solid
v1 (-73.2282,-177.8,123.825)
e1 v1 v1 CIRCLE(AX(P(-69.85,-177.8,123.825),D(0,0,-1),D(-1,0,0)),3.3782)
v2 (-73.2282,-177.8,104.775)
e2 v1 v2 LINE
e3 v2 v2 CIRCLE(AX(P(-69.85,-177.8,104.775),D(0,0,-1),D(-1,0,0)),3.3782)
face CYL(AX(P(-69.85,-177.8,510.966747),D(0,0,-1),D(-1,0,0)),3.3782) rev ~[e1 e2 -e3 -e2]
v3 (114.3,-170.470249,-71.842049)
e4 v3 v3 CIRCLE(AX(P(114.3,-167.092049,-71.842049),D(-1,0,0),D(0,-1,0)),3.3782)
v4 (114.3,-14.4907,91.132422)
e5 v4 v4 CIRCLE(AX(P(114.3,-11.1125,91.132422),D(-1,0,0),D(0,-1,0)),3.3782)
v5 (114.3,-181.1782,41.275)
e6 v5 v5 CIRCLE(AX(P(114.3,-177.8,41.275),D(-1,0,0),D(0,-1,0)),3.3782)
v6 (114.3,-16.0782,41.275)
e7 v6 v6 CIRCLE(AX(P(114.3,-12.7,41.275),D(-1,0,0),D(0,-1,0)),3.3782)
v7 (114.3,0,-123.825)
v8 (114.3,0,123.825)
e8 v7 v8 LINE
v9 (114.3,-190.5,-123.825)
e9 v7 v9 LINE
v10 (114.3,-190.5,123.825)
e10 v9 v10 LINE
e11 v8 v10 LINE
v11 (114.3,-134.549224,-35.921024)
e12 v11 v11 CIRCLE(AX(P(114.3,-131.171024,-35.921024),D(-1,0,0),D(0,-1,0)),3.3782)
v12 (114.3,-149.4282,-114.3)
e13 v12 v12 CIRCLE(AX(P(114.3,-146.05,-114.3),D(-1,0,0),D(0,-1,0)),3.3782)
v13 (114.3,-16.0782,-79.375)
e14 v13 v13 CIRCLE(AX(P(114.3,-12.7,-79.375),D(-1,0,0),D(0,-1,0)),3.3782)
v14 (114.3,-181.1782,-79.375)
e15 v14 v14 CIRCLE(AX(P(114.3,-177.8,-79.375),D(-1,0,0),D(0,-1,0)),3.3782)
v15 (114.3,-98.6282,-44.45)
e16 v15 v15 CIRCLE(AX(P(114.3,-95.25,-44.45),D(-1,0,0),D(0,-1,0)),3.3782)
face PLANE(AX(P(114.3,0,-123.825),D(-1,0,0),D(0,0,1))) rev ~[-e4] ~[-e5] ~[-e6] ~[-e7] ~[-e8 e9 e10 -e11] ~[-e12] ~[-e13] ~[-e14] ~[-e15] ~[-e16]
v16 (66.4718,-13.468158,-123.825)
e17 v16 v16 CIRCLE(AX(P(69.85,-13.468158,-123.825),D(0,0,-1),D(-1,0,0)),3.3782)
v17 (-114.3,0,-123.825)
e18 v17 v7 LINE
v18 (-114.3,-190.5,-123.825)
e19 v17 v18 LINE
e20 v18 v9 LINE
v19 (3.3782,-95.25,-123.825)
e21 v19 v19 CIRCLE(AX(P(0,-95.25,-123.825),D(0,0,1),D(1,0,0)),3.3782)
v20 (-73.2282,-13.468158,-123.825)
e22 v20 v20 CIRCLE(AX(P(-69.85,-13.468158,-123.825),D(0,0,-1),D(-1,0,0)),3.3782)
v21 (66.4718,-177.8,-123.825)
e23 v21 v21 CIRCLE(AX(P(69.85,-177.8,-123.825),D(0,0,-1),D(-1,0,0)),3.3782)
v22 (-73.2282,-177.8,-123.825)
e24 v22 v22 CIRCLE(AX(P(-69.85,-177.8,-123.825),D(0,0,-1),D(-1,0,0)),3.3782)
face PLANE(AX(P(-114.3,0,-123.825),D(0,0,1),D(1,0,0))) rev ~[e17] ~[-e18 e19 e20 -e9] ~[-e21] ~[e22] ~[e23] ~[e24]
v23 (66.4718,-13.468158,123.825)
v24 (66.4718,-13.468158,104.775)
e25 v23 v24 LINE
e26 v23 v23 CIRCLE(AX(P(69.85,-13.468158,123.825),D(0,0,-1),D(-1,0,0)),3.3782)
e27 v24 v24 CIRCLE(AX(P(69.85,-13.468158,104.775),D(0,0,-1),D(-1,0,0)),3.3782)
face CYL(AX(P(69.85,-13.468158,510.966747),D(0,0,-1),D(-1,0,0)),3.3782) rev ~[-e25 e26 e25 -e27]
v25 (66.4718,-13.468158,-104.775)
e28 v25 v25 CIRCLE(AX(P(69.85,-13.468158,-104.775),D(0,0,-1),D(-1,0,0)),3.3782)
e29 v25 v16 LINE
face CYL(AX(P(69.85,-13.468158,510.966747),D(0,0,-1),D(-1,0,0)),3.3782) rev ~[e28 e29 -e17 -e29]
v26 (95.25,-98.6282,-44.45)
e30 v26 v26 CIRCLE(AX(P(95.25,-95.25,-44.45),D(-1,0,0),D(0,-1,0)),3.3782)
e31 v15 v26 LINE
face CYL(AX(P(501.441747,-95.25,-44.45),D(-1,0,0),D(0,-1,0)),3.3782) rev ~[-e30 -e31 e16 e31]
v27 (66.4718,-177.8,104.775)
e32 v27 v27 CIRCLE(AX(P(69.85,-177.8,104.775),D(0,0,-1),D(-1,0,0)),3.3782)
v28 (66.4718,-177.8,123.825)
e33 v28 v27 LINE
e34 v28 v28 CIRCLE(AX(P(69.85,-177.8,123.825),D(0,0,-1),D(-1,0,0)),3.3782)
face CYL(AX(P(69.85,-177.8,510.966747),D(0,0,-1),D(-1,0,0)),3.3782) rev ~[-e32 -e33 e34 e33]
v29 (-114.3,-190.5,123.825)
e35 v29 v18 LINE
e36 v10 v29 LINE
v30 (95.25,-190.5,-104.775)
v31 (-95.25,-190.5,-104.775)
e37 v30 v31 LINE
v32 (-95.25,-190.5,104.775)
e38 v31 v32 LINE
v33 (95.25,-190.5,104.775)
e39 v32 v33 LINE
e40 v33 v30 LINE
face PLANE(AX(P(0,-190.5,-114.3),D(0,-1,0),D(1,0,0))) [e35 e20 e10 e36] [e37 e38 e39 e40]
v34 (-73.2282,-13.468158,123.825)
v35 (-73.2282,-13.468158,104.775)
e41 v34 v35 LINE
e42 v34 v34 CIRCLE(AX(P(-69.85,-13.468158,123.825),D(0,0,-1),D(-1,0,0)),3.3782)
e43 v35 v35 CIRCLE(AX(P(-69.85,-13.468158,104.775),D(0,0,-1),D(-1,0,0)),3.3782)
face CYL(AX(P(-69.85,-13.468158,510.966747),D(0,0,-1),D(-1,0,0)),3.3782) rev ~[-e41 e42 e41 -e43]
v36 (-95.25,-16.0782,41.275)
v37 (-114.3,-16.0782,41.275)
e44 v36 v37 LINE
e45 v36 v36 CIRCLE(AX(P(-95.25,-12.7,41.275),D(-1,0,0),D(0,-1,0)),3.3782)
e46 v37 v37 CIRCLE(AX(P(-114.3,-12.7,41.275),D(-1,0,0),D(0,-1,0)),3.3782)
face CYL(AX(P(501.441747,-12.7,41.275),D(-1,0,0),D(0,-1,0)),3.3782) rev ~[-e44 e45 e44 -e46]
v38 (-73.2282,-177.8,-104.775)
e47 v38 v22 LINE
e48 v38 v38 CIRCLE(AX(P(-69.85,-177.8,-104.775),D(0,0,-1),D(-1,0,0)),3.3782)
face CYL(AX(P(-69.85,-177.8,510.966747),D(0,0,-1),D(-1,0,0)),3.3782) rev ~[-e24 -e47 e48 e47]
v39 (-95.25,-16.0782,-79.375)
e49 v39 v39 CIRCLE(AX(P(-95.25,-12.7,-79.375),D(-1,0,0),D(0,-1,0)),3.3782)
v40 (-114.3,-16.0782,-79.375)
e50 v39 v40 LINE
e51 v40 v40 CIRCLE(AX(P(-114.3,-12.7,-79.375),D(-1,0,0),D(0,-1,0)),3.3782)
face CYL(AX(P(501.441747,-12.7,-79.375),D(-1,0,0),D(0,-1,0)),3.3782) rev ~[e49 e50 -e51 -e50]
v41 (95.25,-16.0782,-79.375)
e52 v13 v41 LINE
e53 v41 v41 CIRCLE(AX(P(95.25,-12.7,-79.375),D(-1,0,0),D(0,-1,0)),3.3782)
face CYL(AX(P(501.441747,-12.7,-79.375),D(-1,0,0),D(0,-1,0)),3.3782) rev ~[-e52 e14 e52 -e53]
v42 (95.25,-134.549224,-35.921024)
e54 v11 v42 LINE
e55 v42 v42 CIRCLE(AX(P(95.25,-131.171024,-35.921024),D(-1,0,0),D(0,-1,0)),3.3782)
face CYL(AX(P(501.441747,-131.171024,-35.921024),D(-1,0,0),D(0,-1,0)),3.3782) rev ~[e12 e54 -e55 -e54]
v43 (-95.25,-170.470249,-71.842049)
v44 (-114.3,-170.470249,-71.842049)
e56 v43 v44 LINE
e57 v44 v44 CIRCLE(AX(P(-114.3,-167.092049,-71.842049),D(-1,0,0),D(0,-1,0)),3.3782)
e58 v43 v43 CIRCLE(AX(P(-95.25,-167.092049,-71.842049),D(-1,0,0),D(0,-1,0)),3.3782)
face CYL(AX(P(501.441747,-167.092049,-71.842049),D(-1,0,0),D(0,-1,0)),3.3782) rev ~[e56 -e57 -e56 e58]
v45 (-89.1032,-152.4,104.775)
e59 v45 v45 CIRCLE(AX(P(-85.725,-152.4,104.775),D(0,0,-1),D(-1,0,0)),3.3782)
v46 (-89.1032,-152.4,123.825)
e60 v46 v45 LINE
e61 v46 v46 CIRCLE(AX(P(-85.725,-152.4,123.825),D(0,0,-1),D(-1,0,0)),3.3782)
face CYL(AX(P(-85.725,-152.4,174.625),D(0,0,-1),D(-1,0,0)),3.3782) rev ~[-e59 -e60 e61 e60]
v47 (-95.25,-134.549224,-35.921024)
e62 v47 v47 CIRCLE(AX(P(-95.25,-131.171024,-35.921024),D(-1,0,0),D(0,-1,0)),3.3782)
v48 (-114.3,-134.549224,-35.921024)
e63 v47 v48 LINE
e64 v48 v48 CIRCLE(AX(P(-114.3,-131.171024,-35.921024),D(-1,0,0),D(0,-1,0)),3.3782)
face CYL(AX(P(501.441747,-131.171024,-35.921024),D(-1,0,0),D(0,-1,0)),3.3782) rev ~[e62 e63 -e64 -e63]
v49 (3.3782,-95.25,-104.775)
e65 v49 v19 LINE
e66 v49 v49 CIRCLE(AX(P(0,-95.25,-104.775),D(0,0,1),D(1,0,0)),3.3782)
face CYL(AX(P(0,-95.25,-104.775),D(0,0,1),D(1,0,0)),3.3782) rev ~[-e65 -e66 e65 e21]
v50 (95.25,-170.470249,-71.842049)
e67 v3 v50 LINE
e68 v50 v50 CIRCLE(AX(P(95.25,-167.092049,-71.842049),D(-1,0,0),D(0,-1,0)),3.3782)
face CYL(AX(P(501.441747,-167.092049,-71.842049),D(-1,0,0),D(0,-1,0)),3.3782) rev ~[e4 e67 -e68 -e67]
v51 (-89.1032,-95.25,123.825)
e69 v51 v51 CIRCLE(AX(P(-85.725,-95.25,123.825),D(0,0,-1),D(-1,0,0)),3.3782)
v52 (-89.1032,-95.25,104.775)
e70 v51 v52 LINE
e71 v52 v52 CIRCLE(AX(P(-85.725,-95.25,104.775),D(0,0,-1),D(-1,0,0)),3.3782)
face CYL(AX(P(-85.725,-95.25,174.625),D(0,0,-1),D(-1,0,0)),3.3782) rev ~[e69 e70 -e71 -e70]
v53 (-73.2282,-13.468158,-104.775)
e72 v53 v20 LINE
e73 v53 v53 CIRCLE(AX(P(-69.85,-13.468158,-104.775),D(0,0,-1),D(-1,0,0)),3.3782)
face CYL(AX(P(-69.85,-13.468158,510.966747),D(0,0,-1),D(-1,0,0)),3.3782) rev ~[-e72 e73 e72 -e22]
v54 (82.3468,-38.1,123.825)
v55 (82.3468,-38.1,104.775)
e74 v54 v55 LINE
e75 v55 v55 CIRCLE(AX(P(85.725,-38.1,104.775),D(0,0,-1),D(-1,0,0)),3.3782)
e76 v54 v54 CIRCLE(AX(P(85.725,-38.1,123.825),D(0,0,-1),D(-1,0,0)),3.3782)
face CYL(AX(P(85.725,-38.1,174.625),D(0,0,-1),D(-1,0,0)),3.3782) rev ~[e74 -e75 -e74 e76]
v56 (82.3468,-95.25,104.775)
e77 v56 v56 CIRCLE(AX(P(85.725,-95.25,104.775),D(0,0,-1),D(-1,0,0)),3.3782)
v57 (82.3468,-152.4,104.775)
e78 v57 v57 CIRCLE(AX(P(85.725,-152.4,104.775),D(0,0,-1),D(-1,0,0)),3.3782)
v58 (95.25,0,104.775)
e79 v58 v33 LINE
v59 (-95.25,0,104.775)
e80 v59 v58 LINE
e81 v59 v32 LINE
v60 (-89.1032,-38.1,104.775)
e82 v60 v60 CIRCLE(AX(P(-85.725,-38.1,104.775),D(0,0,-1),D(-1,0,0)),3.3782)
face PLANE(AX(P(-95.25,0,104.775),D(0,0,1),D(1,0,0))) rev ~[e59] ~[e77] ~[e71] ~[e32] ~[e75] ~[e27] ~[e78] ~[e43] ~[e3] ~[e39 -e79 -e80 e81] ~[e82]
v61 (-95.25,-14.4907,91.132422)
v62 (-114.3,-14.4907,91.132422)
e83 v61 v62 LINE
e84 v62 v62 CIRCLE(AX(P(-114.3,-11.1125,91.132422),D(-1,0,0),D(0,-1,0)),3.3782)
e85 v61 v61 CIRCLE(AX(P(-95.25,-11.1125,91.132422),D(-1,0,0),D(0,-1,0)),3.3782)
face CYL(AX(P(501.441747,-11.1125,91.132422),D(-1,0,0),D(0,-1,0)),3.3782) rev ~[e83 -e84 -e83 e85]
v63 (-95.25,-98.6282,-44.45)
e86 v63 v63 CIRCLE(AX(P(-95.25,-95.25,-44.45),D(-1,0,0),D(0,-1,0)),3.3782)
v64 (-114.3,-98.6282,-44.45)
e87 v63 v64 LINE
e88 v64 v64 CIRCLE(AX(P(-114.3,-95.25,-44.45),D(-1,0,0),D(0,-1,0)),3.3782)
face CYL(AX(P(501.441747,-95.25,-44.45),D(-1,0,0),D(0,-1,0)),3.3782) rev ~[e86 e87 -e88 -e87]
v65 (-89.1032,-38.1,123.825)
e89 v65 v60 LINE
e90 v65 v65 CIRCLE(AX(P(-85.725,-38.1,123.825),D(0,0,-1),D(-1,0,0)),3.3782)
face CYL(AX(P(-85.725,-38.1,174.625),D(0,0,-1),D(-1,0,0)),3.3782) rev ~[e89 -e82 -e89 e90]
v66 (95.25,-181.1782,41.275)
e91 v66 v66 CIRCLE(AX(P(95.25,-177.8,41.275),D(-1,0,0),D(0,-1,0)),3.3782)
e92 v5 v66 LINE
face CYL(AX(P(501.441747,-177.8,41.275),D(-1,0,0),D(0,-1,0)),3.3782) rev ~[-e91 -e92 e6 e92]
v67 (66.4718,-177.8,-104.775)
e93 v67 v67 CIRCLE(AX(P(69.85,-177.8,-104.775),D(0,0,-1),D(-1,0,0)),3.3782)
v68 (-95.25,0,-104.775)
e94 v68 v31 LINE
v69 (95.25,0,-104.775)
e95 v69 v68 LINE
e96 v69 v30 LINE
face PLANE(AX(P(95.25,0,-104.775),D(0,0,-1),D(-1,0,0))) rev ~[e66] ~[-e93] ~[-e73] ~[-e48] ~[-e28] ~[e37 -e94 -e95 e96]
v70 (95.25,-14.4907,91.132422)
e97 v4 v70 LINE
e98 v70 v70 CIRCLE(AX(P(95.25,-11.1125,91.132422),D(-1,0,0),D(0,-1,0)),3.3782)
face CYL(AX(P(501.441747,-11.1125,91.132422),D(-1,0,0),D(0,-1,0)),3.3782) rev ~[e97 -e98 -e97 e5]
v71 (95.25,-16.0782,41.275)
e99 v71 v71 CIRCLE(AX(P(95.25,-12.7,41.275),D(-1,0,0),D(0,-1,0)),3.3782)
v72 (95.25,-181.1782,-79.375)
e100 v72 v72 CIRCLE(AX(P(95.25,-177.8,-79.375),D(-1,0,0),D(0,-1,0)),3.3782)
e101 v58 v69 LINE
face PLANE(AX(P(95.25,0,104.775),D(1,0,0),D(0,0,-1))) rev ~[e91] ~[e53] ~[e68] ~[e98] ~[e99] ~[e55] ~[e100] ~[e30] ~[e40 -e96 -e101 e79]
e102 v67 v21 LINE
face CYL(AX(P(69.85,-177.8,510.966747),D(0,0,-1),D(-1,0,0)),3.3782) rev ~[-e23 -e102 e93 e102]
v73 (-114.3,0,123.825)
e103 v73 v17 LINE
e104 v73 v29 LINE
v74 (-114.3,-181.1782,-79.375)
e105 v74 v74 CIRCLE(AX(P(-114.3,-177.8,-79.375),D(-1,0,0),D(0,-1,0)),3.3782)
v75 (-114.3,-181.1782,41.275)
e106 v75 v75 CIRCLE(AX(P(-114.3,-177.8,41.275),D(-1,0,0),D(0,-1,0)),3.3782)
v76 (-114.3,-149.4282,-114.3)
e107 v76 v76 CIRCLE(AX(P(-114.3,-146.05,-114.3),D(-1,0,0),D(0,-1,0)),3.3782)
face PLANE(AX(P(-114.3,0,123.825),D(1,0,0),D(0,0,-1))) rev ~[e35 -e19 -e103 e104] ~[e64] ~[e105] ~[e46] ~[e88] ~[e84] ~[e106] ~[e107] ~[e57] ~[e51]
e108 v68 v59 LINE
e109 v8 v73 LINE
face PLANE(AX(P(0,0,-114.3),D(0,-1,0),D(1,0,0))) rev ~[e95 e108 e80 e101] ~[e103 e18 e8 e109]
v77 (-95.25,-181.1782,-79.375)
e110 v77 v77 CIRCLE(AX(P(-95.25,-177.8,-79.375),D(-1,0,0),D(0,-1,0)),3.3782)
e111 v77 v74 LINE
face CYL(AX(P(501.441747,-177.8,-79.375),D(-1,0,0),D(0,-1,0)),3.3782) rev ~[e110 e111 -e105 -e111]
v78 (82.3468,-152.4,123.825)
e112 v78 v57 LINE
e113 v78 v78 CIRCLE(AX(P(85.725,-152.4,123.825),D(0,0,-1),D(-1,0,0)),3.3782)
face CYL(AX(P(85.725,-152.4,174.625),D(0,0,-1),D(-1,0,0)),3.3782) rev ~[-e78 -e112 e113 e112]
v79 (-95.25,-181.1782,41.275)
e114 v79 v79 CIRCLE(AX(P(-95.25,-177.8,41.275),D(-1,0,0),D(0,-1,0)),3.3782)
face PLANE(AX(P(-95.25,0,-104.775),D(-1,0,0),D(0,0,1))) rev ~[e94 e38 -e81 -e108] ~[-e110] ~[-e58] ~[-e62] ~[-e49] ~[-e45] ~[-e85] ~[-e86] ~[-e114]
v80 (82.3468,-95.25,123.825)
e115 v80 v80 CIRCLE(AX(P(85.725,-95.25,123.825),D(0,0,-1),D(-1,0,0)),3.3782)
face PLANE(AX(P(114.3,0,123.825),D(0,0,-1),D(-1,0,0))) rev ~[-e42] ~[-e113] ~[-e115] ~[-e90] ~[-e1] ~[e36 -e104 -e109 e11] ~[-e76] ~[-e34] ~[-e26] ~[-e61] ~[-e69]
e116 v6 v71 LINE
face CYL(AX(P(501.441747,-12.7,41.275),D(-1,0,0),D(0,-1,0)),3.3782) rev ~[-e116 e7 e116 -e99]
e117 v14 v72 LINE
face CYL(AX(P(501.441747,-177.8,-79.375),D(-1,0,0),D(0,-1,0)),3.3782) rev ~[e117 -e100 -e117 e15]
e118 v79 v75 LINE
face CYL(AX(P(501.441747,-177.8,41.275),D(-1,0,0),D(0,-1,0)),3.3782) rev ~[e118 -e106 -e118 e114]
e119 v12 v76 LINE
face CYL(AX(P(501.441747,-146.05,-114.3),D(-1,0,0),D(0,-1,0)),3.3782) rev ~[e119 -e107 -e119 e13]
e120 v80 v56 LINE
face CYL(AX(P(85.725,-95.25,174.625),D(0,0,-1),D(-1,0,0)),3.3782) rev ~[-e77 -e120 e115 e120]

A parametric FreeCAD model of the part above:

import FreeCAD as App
import Part
import Sketcher
Q = App.Units.Quantity

doc = App.newDocument("Part")
body = doc.addObject("PartDesign::Body", "Body")

# Sketch on XZ plane
sketch1 = body.newObject("Sketcher::SketchObject", "Sketch")
sketch1.AttachmentSupport = (doc.getObject("XZ_Plane"), [""])
sketch1.MapMode = "FlatFace"
sketch1.addGeometry([
    Part.LineSegment(App.Vector(114, -124, 0), App.Vector(114, 124, 0)),  # 0
    Part.LineSegment(App.Vector(114, 124, 0), App.Vector(-114, 124, 0)),  # 1
    Part.LineSegment(App.Vector(-114, 124, 0), App.Vector(-114, -124, 0)),  # 2
    Part.LineSegment(App.Vector(-114, -124, 0), App.Vector(114, -124, 0)),  # 3
    Part.LineSegment(App.Vector(95, 105, 0), App.Vector(95, -105, 0)),  # 4
    Part.LineSegment(App.Vector(95, -105, 0), App.Vector(-95, -105, 0)),  # 5
    Part.LineSegment(App.Vector(-95, -105, 0), App.Vector(-95, 105, 0)),  # 6
    Part.LineSegment(App.Vector(-95, 105, 0), App.Vector(95, 105, 0)),  # 7
], False)
sketch1.addConstraint([
    Sketcher.Constraint("Coincident", 0, 2, 1, 1),
    Sketcher.Constraint("Coincident", 1, 2, 2, 1),
    Sketcher.Constraint("Coincident", 2, 2, 3, 1),
    Sketcher.Constraint("Coincident", 3, 2, 0, 1),
    Sketcher.Constraint("Coincident", 4, 2, 5, 1),
    Sketcher.Constraint("Coincident", 5, 2, 6, 1),
    Sketcher.Constraint("Coincident", 6, 2, 7, 1),
    Sketcher.Constraint("Coincident", 7, 2, 4, 1),
    Sketcher.Constraint("Vertical", 0),
    Sketcher.Constraint("Horizontal", 1),
    Sketcher.Constraint("Vertical", 2),
    Sketcher.Constraint("Horizontal", 3),
    Sketcher.Constraint("Vertical", 4),
    Sketcher.Constraint("Horizontal", 5),
    Sketcher.Constraint("Vertical", 6),
    Sketcher.Constraint("Horizontal", 7),
    Sketcher.Constraint("Symmetric", 0, 2, 2, 2, -1, 1),
    Sketcher.Constraint("Symmetric", 4, 2, 6, 2, -1, 1),
    Sketcher.Constraint("DistanceX", 1, 2, 1, 1, Q("9 in")),
    Sketcher.Constraint("DistanceX", 5, 2, 5, 1, Q("7.5 in")),
    Sketcher.Constraint("DistanceY", 4, 2, 0, 2, Q("9 in")),
    Sketcher.Constraint("DistanceY", 0, 1, 0, 2, Q("9.75 in")),
])
pad1 = body.newObject("PartDesign::Pad", "Pad")
pad1.Profile = sketch1
pad1.Length = Q("7.5 in")

# Sketch on XY plane
sketch2 = body.newObject("Sketcher::SketchObject", "Sketch001")
sketch2.AttachmentSupport = (doc.getObject("XY_Plane"), [""])
sketch2.MapMode = "FlatFace"
sketch2.AttachmentOffset = App.Placement(App.Vector(0, 0, 4.875 * 25.4), App.Rotation())
sketch2.addGeometry([
    Part.Circle(App.Vector(-85.7, -38.1, 0), App.Vector(0, 0, 1), 3.4),  # 0
    Part.Circle(App.Vector(-85.7, -95.2, 0), App.Vector(0, 0, 1), 3.4),  # 1
    Part.Circle(App.Vector(-85.7, -152.4, 0), App.Vector(0, 0, 1), 3.4),  # 2
    Part.Circle(App.Vector(85.7, -152.4, 0), App.Vector(0, 0, 1), 3.4),  # 3
    Part.Circle(App.Vector(85.7, -95.2, 0), App.Vector(0, 0, 1), 3.4),  # 4
    Part.Circle(App.Vector(85.7, -38.1, 0), App.Vector(0, 0, 1), 3.4),  # 5
], False)
sketch2.addConstraint([
    Sketcher.Constraint("Equal", 0, 1),
    Sketcher.Constraint("Equal", 1, 2),
    Sketcher.Constraint("Equal", 2, 3),
    Sketcher.Constraint("Equal", 3, 4),
    Sketcher.Constraint("Equal", 4, 5),
    Sketcher.Constraint("Symmetric", 2, 3, 3, 3, -2),
    Sketcher.Constraint("Symmetric", 1, 3, 4, 3, -2),
    Sketcher.Constraint("Symmetric", 0, 3, 5, 3, -2),
    Sketcher.Constraint("Vertical", 0, 3, 1, 3),
    Sketcher.Constraint("Vertical", 1, 3, 2, 3),
    Sketcher.Constraint("Diameter", 0, Q("0.266 in")),
    Sketcher.Constraint("DistanceY", 2, 3, -1, 1, Q("6 in")),
    Sketcher.Constraint("DistanceY", 0, 3, -1, 1, Q("1.5 in")),
    Sketcher.Constraint("DistanceY", 1, 3, -1, 1, Q("3.75 in")),
    Sketcher.Constraint("DistanceX", 2, 3, 3, 3, Q("6.75 in")),
])
doc.recompute()
hole = body.newObject("PartDesign::Hole", "Hole")
hole.Profile = sketch2
hole.ThreadType = "None"
hole.Diameter = Q("0.266 in")
hole.DepthType = "Dimension"
hole.Depth = Q("2 in")
hole.DrillPoint = "Angled"
hole.DrillPointAngle = 118

# Sketch on XY plane
sketch3 = body.newObject("Sketcher::SketchObject", "Sketch002")
sketch3.AttachmentSupport = (doc.getObject("XY_Plane"), [""])
sketch3.MapMode = "FlatFace"
sketch3.AttachmentOffset = App.Placement(App.Vector(0, 0, 4.875 * 25.4), App.Rotation())
sketch3.addGeometry([
    Part.Circle(App.Vector(-69.8, -13.5, 0), App.Vector(0, 0, 1), 3.4),
    Part.Circle(App.Vector(69.8, -13.5, 0), App.Vector(0, 0, 1), 3.4),
    Part.Circle(App.Vector(69.8, -177.8, 0), App.Vector(0, 0, 1), 3.4),
    Part.Circle(App.Vector(-69.8, -177.8, 0), App.Vector(0, 0, 1), 3.4),
], False)
sketch3.addConstraint([
    Sketcher.Constraint("Equal", 0, 1),
    Sketcher.Constraint("Equal", 1, 2),
    Sketcher.Constraint("Equal", 2, 3),
    Sketcher.Constraint("Symmetric", 0, 3, 1, 3, -2),
    Sketcher.Constraint("Symmetric", 2, 3, 3, 3, -2),
    Sketcher.Constraint("Vertical", 1, 3, 2, 3),
    Sketcher.Constraint("Diameter", 0, Q("0.266 in")),
    Sketcher.Constraint("DistanceY", 2, 3, -1, 1, Q("7 in")),
    Sketcher.Constraint("DistanceX", 0, 3, 1, 3, Q("5.5 in")),
    Sketcher.Constraint("DistanceY", 0, 3, -1, 1, Q("13.468158 mm")),
])
doc.recompute()
hole2 = body.newObject("PartDesign::Hole", "Hole001")
hole2.Profile = sketch3
hole2.ThreadType = "None"
hole2.Diameter = Q("0.266 in")
hole2.DepthType = "ThroughAll"

# Sketch on YZ plane
sketch4 = body.newObject("Sketcher::SketchObject", "Sketch003")
sketch4.AttachmentSupport = (doc.getObject("YZ_Plane"), [""])
sketch4.MapMode = "FlatFace"
sketch4.AttachmentOffset = App.Placement(App.Vector(0, 0, 4.5 * 25.4), App.Rotation())
sketch4.addGeometry([
    Part.Circle(App.Vector(-177.8, 41.3, 0), App.Vector(0, 0, 1), 3.4),
    Part.Circle(App.Vector(-12.7, 41.3, 0), App.Vector(0, 0, 1), 3.4),
    Part.Circle(App.Vector(-12.7, -79.4, 0), App.Vector(0, 0, 1), 3.4),
    Part.Circle(App.Vector(-177.8, -79.4, 0), App.Vector(0, 0, 1), 3.4),
], False)
sketch4.addConstraint([
    Sketcher.Constraint("Equal", 0, 1),
    Sketcher.Constraint("Equal", 1, 2),
    Sketcher.Constraint("Equal", 2, 3),
    Sketcher.Constraint("Horizontal", 0, 3, 1, 3),
    Sketcher.Constraint("Horizontal", 2, 3, 3, 3),
    Sketcher.Constraint("Vertical", 1, 3, 2, 3),
    Sketcher.Constraint("Vertical", 0, 3, 3, 3),
    Sketcher.Constraint("Diameter", 0, Q("0.266 in")),
    Sketcher.Constraint("DistanceX", 0, 3, -1, 1, Q("7 in")),
    Sketcher.Constraint("DistanceX", 1, 3, -1, 1, Q("0.5 in")),
    Sketcher.Constraint("DistanceY", 2, 3, 1, 3, Q("4.75 in")),
    Sketcher.Constraint("DistanceY", -1, 1, 0, 3, Q("1.625 in")),
])
doc.recompute()
hole3 = body.newObject("PartDesign::Hole", "Hole002")
hole3.Profile = sketch4
hole3.ThreadType = "None"
hole3.Diameter = Q("0.266 in")
hole3.DepthType = "ThroughAll"

# Sketch on YZ plane
sketch5 = body.newObject("Sketcher::SketchObject", "Sketch004")
sketch5.AttachmentSupport = (doc.getObject("YZ_Plane"), [""])
sketch5.MapMode = "FlatFace"
sketch5.AttachmentOffset = App.Placement(App.Vector(0, 0, 4.5 * 25.4), App.Rotation())
sketch5.addGeometry(Part.Circle(App.Vector(-95.2, -44.5, 0), App.Vector(0, 0, 1), 3.4), False)
sketch5.addConstraint([
    Sketcher.Constraint("Diameter", 0, Q("0.266 in")),
    Sketcher.Constraint("DistanceX", 0, 3, -1, 1, Q("3.75 in")),
    Sketcher.Constraint("DistanceY", 0, 3, -1, 1, Q("1.75 in")),
])
doc.recompute()
hole4 = body.newObject("PartDesign::Hole", "Hole003")
hole4.Profile = sketch5
hole4.ThreadType = "None"
hole4.Diameter = Q("0.266 in")
hole4.DepthType = "ThroughAll"

# Sketch on XY plane
sketch6 = body.newObject("Sketcher::SketchObject", "Sketch005")
sketch6.AttachmentSupport = (doc.getObject("XY_Plane"), [""])
sketch6.MapMode = "FlatFace"
sketch6.AttachmentOffset = App.Placement(App.Vector(0, 0, -4.125 * 25.4), App.Rotation())
sketch6.addGeometry(Part.Circle(App.Vector(0, -95.2, 0), App.Vector(0, 0, 1), 3.4), False)
sketch6.addConstraint([
    Sketcher.Constraint("PointOnObject", 0, 3, -2),
    Sketcher.Constraint("Diameter", 0, Q("0.266 in")),
    Sketcher.Constraint("DistanceY", 0, 3, -1, 1, Q("3.75 in")),
])
pocket1 = body.newObject("PartDesign::Pocket", "Pocket")
pocket1.Profile = sketch6
pocket1.Type = "ThroughAll"

# Sketch on YZ plane
sketch7 = body.newObject("Sketcher::SketchObject", "Sketch006")
sketch7.AttachmentSupport = (doc.getObject("YZ_Plane"), [""])
sketch7.MapMode = "FlatFace"
sketch7.AttachmentOffset = App.Placement(App.Vector(0, 0, 4.5 * 25.4), App.Rotation())
sketch7.addGeometry([
    Part.Circle(App.Vector(-146.1, -114.3, 0), App.Vector(0, 0, 1), 3.4),
    Part.Circle(App.Vector(-11.1, 91.1, 0), App.Vector(0, 0, 1), 3.4),
    Part.Circle(App.Vector(-131.2, -35.9, 0), App.Vector(0, 0, 1), 3.4),
    Part.Circle(App.Vector(-167.1, -71.8, 0), App.Vector(0, 0, 1), 3.4),
], False)
sketch7.addConstraint([
    Sketcher.Constraint("Equal", 0, 1),
    Sketcher.Constraint("Equal", 1, 2),
    Sketcher.Constraint("Equal", 2, 3),
    Sketcher.Constraint("Diameter", 0, Q("0.266 in")),
    Sketcher.Constraint("DistanceY", 0, 3, -1, 1, Q("4.5 in")),
    Sketcher.Constraint("DistanceX", 0, 3, -1, 1, Q("5.75 in")),
    Sketcher.Constraint("DistanceX", 1, 3, -1, 1, Q("0.4375 in")),
    Sketcher.Constraint("DistanceY", -1, 1, 1, 3, Q("91.132422 mm")),
    Sketcher.Constraint("DistanceX", 3, 3, -1, 1, Q("167.092049 mm")),
    Sketcher.Constraint("DistanceY", 3, 3, -1, 1, Q("71.842049 mm")),
    Sketcher.Constraint("DistanceX", 2, 3, -1, 1, Q("131.171024 mm")),
    Sketcher.Constraint("DistanceY", 2, 3, -1, 1, Q("35.921024 mm")),
])
doc.recompute()
hole5 = body.newObject("PartDesign::Hole", "Hole004")
hole5.Profile = sketch7
hole5.ThreadType = "None"
hole5.Diameter = Q("0.266 in")
hole5.DepthType = "ThroughAll"

doc.recompute()
